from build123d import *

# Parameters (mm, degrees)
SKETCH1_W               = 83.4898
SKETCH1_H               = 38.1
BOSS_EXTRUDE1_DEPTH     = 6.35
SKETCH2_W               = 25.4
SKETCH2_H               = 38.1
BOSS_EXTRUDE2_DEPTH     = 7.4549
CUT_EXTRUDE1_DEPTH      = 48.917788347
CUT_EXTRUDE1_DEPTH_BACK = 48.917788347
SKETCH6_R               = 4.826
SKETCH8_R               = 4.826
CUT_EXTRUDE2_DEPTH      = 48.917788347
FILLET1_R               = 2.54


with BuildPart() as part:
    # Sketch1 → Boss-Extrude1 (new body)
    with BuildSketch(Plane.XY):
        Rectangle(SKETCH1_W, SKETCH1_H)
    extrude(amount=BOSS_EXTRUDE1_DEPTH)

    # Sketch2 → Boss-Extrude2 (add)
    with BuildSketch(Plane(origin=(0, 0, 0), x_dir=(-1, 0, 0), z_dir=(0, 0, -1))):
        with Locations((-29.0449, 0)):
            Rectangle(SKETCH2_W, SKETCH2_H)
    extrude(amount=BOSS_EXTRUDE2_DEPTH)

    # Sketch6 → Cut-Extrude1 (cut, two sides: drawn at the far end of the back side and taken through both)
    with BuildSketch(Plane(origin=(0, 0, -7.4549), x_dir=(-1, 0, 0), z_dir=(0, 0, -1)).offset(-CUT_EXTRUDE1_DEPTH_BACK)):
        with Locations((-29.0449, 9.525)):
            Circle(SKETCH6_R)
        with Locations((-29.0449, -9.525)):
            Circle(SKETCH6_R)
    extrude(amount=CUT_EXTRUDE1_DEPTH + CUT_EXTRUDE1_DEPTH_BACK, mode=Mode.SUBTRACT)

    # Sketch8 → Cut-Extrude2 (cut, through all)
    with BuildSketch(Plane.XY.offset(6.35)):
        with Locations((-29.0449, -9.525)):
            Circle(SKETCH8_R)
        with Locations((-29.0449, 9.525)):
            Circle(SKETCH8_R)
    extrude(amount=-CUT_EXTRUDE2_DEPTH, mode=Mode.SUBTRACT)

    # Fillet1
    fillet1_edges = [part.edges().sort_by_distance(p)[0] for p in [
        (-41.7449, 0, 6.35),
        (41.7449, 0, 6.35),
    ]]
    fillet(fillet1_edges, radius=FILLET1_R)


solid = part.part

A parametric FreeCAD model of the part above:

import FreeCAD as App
import Part
import Sketcher
from FreeCAD import Vector
Q = App.Units.Quantity


def edges_at(feature, points):
    """Names of the edges that pass closest to the given points."""
    edges = feature.Shape.Edges
    near = lambda p: min(range(len(edges)), key=lambda i: edges[i].distToShape(Part.Vertex(*p))[0])
    return sorted({f"Edge{near(p) + 1}" for p in points})


def add_polygon(sketch, points):
    """Adds a closed chain of lines whose ends are joined by coincident constraints."""
    first, n = sketch.GeometryCount, len(points)
    for a, b in zip(points, points[1:] + points[:1]):
        sketch.addGeometry(Part.LineSegment(App.Vector(*a, 0), App.Vector(*b, 0)), False)
    for i in range(n):
        sketch.addConstraint(Sketcher.Constraint("Coincident", first + i, 2, first + (i + 1) % n, 1))

doc = App.newDocument("Part")
params = doc.addObject("Spreadsheet::Sheet", "Params")
for row, (alias, value) in enumerate([
    ("sketch1_height", "1.5 in"),
    ("sketch1_width", "3.287 in"),
    ("pad1_length", "0.25 in"),
    ("sketch2_width", "1 in"),
    ("sketch2_height", "1.5 in"),
    ("pad2_length", "0.2935 in"),
    ("sketch3_diameter", "0.38 in"),
    ("sketch4_diameter", "0.38 in"),
    ("fillet_radius", "0.1 in"),
], start=1):
    params.set(f"A{row}", alias)
    params.set(f"B{row}", "=" + value)
    params.setAlias(f"B{row}", alias)

body = doc.addObject("PartDesign::Body", "Body")

# Sketch on XY plane
sketch1 = body.newObject("Sketcher::SketchObject", "Sketch")
sketch1.AttachmentSupport = (doc.getObject("XY_Plane"), [""])
sketch1.MapMode = "FlatFace"
add_polygon(sketch1, [(-42, 19), (-42, -19), (42, -19), (42, 19)])  # lines 0-3
sketch1.addConstraint(Sketcher.Constraint("Vertical", 0))
sketch1.addConstraint(Sketcher.Constraint("Horizontal", 1))
sketch1.addConstraint(Sketcher.Constraint("Vertical", 2))
sketch1.addConstraint(Sketcher.Constraint("Horizontal", 3))
sketch1.addConstraint(Sketcher.Constraint("Symmetric", 0, 2, 2, 2, -1, 1))
sketch1.addConstraint(Sketcher.Constraint("DistanceY", 0, 2, 0, 1, Q("1.5 in")))
sketch1.addConstraint(Sketcher.Constraint("DistanceX", 1, 1, 1, 2, Q("3.287 in")))
sketch1.setExpression("Constraints[9]", "Params.sketch1_height")
sketch1.setExpression("Constraints[10]", "Params.sketch1_width")
pad1 = body.newObject("PartDesign::Pad", "Pad")
pad1.Profile = sketch1
pad1.setExpression("Length", "Params.pad1_length")

# Sketch on XY plane
sketch2 = body.newObject("Sketcher::SketchObject", "Sketch001")
sketch2.AttachmentSupport = (doc.getObject("XY_Plane"), [""])
sketch2.MapMode = "FlatFace"
add_polygon(sketch2, [(42, 19), (42, -19), (16, -19), (16, 19)])  # lines 0-3
sketch2.addConstraint(Sketcher.Constraint("Vertical", 0))
sketch2.addConstraint(Sketcher.Constraint("Horizontal", 1))
sketch2.addConstraint(Sketcher.Constraint("Vertical", 2))
sketch2.addConstraint(Sketcher.Constraint("Horizontal", 3))
sketch2.addConstraint(Sketcher.Constraint("DistanceX", 1, 2, 1, 1, Q("1 in")))
sketch2.addConstraint(Sketcher.Constraint("DistanceY", 0, 2, 0, 1, Q("1.5 in")))
sketch2.addConstraint(Sketcher.Constraint("DistanceY", 0, 2, -1, 1, Q("0.75 in")))
sketch2.addConstraint(Sketcher.Constraint("DistanceX", -1, 1, 0, 2, Q("1.6435 in")))
sketch2.setExpression("Constraints[8]", "Params.sketch2_width")
sketch2.setExpression("Constraints[9]", "Params.sketch2_height")
pad2 = body.newObject("PartDesign::Pad", "Pad001")
pad2.Profile = sketch2
pad2.setExpression("Length", "Params.pad2_length")
pad2.Reversed = True

# Sketch on XY plane
sketch3 = body.newObject("Sketcher::SketchObject", "Sketch002")
sketch3.AttachmentSupport = (doc.getObject("XY_Plane"), [""])
sketch3.MapMode = "FlatFace"
sketch3.AttachmentOffset = App.Placement(Vector(0, 0, -0.2935 * 25.4), App.Rotation())
sketch3.addGeometry(Part.Circle(Vector(29, 9.5, 0), Vector(0, 0, 1), 4.8), False)
sketch3.addGeometry(Part.Circle(Vector(29, -9.5, 0), Vector(0, 0, 1), 4.8), False)
sketch3.addConstraint(Sketcher.Constraint("Equal", 0, 1))
sketch3.addConstraint(Sketcher.Constraint("Symmetric", 0, 3, 1, 3, -1))
sketch3.addConstraint(Sketcher.Constraint("Diameter", 0, Q("0.38 in")))
sketch3.addConstraint(Sketcher.Constraint("DistanceY", 1, 3, 0, 3, Q("0.75 in")))
sketch3.addConstraint(Sketcher.Constraint("DistanceX", -1, 1, 0, 3, Q("1.1435 in")))
sketch3.setExpression("Constraints[2]", "Params.sketch3_diameter")
pocket1 = body.newObject("PartDesign::Pocket", "Pocket")
pocket1.Profile = sketch3
pocket1.Type = "ThroughAll"
pocket1.Midplane = True

# Sketch on XY plane
sketch4 = body.newObject("Sketcher::SketchObject", "Sketch003")
sketch4.AttachmentSupport = (doc.getObject("XY_Plane"), [""])
sketch4.MapMode = "FlatFace"
sketch4.AttachmentOffset = App.Placement(Vector(0, 0, 0.25 * 25.4), App.Rotation())
sketch4.addGeometry(Part.Circle(Vector(-29, -9.5, 0), Vector(0, 0, 1), 4.8), False)
sketch4.addGeometry(Part.Circle(Vector(-29, 9.5, 0), Vector(0, 0, 1), 4.8), False)
sketch4.addConstraint(Sketcher.Constraint("Equal", 0, 1))
sketch4.addConstraint(Sketcher.Constraint("Symmetric", 0, 3, 1, 3, -1))
sketch4.addConstraint(Sketcher.Constraint("Diameter", 0, Q("0.38 in")))
sketch4.addConstraint(Sketcher.Constraint("DistanceY", 0, 3, 1, 3, Q("0.75 in")))
sketch4.addConstraint(Sketcher.Constraint("DistanceX", 0, 3, -1, 1, Q("1.1435 in")))
sketch4.setExpression("Constraints[2]", "Params.sketch4_diameter")
pocket2 = body.newObject("PartDesign::Pocket", "Pocket001")
pocket2.Profile = sketch4
pocket2.Type = "ThroughAll"
doc.recompute()

fillet = body.newObject("PartDesign::Fillet", "Fillet")
fillet.Base = (pocket2, edges_at(pocket2, [(-41.745, 0, 6.35), (41.745, 0, 6.35)]))
fillet.setExpression("Radius", "Params.fillet_radius")

doc.recompute()
